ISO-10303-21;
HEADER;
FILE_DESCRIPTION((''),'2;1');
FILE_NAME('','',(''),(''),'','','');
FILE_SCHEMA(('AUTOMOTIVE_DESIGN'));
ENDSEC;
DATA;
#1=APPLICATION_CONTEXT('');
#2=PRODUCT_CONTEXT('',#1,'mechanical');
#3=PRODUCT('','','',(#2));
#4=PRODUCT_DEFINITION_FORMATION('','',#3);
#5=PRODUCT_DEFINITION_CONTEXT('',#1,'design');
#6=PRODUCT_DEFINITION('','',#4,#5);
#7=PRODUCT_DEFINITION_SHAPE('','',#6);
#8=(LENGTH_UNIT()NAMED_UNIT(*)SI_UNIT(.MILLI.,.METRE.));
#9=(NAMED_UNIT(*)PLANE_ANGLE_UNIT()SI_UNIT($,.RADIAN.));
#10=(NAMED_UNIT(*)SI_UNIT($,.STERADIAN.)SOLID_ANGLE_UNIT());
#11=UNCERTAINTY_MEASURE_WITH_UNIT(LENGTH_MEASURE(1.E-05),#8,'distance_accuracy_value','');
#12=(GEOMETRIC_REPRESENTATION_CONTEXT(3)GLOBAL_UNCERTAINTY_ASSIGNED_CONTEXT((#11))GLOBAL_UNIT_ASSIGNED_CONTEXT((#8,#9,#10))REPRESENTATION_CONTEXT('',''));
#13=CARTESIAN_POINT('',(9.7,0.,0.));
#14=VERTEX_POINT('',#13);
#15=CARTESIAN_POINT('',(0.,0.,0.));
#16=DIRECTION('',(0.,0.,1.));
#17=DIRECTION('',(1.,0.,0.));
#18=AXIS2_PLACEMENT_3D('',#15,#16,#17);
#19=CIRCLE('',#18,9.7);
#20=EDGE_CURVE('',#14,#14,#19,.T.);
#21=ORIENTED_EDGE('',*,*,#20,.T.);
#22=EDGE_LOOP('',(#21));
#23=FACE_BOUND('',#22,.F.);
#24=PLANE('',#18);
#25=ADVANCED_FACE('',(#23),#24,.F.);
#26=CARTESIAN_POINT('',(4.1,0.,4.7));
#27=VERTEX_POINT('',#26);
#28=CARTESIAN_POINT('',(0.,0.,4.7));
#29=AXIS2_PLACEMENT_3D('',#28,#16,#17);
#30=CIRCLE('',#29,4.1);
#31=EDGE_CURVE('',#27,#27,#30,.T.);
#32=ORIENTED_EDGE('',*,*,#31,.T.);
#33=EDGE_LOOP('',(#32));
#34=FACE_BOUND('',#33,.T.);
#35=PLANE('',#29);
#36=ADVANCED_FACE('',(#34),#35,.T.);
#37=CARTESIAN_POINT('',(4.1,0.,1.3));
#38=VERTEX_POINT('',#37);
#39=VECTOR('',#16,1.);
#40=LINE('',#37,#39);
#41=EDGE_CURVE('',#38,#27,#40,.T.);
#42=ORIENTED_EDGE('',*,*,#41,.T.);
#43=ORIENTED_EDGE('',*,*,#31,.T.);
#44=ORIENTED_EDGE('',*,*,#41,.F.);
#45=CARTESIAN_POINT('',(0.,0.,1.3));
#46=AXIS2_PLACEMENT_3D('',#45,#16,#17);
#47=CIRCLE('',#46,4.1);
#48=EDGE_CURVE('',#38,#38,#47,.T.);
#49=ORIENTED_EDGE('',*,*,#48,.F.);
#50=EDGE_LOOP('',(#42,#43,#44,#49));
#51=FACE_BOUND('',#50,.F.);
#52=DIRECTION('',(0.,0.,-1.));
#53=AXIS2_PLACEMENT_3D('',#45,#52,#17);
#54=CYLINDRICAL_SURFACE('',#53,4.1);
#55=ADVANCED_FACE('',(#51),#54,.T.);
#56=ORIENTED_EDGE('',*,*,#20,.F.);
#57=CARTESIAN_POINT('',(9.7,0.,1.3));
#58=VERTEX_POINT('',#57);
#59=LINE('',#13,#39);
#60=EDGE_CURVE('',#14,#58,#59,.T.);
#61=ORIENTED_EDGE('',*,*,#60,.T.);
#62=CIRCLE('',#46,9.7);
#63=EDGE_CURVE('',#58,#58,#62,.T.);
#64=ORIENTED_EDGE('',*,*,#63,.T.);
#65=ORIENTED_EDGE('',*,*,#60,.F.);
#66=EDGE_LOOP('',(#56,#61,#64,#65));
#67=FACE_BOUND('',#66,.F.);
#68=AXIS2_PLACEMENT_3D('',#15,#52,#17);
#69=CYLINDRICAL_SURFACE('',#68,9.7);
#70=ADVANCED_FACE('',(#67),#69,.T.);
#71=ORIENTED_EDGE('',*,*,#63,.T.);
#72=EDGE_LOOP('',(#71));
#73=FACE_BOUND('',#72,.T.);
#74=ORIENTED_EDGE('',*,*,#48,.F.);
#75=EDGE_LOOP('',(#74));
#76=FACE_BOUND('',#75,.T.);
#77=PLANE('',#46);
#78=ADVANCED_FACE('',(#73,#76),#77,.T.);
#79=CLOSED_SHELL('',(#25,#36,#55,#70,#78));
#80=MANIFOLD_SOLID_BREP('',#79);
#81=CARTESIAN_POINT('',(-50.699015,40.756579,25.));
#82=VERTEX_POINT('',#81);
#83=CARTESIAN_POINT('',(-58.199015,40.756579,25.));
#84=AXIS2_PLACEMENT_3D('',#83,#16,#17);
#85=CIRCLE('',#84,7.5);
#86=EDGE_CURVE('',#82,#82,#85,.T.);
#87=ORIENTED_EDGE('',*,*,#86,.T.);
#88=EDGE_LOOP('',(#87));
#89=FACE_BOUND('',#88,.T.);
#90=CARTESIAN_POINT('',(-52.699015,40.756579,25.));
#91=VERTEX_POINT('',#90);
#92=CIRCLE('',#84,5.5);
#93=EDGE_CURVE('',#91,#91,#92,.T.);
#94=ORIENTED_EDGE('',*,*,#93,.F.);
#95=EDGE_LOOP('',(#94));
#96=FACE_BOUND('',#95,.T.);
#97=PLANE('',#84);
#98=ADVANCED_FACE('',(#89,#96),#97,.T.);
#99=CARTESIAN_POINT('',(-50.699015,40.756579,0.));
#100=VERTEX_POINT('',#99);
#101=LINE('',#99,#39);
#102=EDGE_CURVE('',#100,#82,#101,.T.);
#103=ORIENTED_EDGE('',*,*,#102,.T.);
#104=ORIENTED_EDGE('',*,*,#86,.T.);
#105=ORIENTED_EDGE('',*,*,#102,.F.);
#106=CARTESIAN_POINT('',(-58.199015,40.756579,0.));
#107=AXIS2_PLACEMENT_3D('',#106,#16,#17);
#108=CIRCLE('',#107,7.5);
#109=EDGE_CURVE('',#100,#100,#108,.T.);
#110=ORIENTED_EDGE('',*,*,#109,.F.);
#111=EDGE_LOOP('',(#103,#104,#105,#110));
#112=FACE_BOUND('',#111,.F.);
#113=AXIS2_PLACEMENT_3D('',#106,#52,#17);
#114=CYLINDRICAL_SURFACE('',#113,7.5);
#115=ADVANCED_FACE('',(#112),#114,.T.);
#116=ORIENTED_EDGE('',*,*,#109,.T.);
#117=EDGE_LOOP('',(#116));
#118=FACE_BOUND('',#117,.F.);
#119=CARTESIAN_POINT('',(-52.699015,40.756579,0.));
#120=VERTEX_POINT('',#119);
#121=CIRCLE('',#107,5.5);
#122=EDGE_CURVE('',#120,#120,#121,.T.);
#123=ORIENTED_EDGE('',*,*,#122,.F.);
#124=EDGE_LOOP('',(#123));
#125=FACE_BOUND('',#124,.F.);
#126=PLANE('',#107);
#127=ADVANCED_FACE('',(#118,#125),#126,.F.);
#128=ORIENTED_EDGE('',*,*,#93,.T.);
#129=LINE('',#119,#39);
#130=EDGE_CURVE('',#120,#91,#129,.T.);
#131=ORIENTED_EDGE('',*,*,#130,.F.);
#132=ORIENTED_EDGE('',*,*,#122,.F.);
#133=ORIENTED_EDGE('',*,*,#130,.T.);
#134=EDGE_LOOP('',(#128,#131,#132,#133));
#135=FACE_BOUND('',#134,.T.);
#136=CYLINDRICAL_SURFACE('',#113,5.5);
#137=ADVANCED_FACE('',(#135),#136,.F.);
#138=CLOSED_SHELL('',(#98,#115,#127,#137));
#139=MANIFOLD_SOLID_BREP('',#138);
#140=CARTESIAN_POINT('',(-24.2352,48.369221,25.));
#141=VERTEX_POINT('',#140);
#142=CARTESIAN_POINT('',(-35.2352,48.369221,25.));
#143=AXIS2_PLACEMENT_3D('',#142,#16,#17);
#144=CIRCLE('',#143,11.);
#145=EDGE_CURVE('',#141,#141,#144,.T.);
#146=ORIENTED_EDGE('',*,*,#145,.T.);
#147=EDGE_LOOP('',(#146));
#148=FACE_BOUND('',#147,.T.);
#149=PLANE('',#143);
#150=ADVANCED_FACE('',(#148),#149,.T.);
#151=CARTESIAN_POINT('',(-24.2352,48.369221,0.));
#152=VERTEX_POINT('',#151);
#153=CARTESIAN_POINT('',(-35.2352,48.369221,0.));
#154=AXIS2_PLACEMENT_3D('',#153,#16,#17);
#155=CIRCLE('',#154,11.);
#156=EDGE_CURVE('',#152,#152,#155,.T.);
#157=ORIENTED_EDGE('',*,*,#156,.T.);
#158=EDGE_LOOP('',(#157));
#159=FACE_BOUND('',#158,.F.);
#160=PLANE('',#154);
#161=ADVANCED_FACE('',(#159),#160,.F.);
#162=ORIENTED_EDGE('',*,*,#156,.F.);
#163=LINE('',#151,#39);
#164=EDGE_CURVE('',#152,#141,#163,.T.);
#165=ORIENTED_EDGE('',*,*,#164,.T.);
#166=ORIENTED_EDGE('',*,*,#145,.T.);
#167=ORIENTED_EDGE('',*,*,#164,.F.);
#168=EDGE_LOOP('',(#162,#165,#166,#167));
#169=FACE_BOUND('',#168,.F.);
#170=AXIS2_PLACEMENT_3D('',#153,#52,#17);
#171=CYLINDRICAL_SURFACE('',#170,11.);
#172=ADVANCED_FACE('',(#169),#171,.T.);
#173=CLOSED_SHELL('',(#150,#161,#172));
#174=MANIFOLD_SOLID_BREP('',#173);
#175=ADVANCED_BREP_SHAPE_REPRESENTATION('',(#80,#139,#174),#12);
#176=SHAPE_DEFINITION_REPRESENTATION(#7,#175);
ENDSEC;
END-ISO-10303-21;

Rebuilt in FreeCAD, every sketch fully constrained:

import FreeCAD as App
import Part
import Sketcher

V = App.Vector
Q = App.Units.Quantity

doc = App.newDocument("Part")
params = doc.addObject("Spreadsheet::Sheet", "Params")
for row, (alias, value) in enumerate([
    ("sketch1_diameter", "19.4 mm"),
    ("pad1_length", "1.3 mm"),
    ("sketch2_diameter", "8.2 mm"),
    ("pad2_length", "3.4 mm"),
    ("sketch3_diameter", "15 mm"),
    ("sketch3_diameter2", "11 mm"),
    ("pad3_length", "25 mm"),
    ("sketch4_diameter", "22 mm"),
    ("pad4_length", "25 mm"),
], start=1):
    params.set(f"A{row}", alias)
    params.set(f"B{row}", "=" + value)
    params.setAlias(f"B{row}", alias)

body = doc.addObject("PartDesign::Body", "Body")

sketch1 = body.newObject("Sketcher::SketchObject", "Sketch")
sketch1.AttachmentSupport = (doc.getObject("XY_Plane"), [""])
sketch1.MapMode = "FlatFace"
sketch1.addGeometry(Part.Circle(V(0, 0, 0), V(0, 0, 1), 9.7), False)
sketch1.addConstraint(Sketcher.Constraint("Coincident", 0, 3, -1, 1))
sketch1.addConstraint(Sketcher.Constraint("Diameter", 0, Q("19.4 mm")))
sketch1.setExpression("Constraints[1]", "Params.sketch1_diameter")
pad1 = body.newObject("PartDesign::Pad", "Pad")
pad1.Profile = sketch1
pad1.setExpression("Length", "Params.pad1_length")

sketch2 = body.newObject("Sketcher::SketchObject", "Sketch001")
sketch2.AttachmentSupport = (doc.getObject("XY_Plane"), [""])
sketch2.MapMode = "FlatFace"
sketch2.AttachmentOffset = App.Placement(V(0, 0, 1.3), App.Rotation())
sketch2.addGeometry(Part.Circle(V(0, 0, 0), V(0, 0, 1), 4.1), False)
sketch2.addConstraint(Sketcher.Constraint("Coincident", 0, 3, -1, 1))
sketch2.addConstraint(Sketcher.Constraint("Diameter", 0, Q("8.2 mm")))
sketch2.setExpression("Constraints[1]", "Params.sketch2_diameter")
pad2 = body.newObject("PartDesign::Pad", "Pad001")
pad2.Profile = sketch2
pad2.setExpression("Length", "Params.pad2_length")
body2 = doc.addObject("PartDesign::Body", "Body001")

sketch3 = body2.newObject("Sketcher::SketchObject", "Sketch002")
sketch3.AttachmentSupport = (doc.getObject("XY_Plane001"), [""])
sketch3.MapMode = "FlatFace"
sketch3.addGeometry(Part.Circle(V(-58.199015, 40.756579, 0), V(0, 0, 1), 7.5), False)
sketch3.addGeometry(Part.Circle(V(-58.199015, 40.756579, 0), V(0, 0, 1), 5.5), False)
sketch3.addConstraint(Sketcher.Constraint("Coincident", 1, 3, 0, 3))
sketch3.addConstraint(Sketcher.Constraint("Diameter", 0, Q("15 mm")))
sketch3.addConstraint(Sketcher.Constraint("Diameter", 1, Q("11 mm")))
sketch3.addConstraint(Sketcher.Constraint("DistanceY", -1, 1, 0, 3, Q("40.756579 mm")))
sketch3.addConstraint(Sketcher.Constraint("DistanceX", 0, 3, -1, 1, Q("58.199015 mm")))
sketch3.setExpression("Constraints[1]", "Params.sketch3_diameter")
sketch3.setExpression("Constraints[2]", "Params.sketch3_diameter2")
pad3 = body2.newObject("PartDesign::Pad", "Pad002")
pad3.Profile = sketch3
pad3.setExpression("Length", "Params.pad3_length")
body3 = doc.addObject("PartDesign::Body", "Body002")

sketch4 = body3.newObject("Sketcher::SketchObject", "Sketch003")
sketch4.AttachmentSupport = (doc.getObject("XY_Plane002"), [""])
sketch4.MapMode = "FlatFace"
sketch4.addGeometry(Part.Circle(V(-35.2352, 48.369221, 0), V(0, 0, 1), 11), False)
sketch4.addConstraint(Sketcher.Constraint("Diameter", 0, Q("22 mm")))
sketch4.addConstraint(Sketcher.Constraint("DistanceX", 0, 3, -1, 1, Q("35.2352 mm")))
sketch4.addConstraint(Sketcher.Constraint("DistanceY", -1, 1, 0, 3, Q("48.369221 mm")))
sketch4.setExpression("Constraints[0]", "Params.sketch4_diameter")
pad4 = body3.newObject("PartDesign::Pad", "Pad003")
pad4.Profile = sketch4
pad4.setExpression("Length", "Params.pad4_length")

doc.recompute()
